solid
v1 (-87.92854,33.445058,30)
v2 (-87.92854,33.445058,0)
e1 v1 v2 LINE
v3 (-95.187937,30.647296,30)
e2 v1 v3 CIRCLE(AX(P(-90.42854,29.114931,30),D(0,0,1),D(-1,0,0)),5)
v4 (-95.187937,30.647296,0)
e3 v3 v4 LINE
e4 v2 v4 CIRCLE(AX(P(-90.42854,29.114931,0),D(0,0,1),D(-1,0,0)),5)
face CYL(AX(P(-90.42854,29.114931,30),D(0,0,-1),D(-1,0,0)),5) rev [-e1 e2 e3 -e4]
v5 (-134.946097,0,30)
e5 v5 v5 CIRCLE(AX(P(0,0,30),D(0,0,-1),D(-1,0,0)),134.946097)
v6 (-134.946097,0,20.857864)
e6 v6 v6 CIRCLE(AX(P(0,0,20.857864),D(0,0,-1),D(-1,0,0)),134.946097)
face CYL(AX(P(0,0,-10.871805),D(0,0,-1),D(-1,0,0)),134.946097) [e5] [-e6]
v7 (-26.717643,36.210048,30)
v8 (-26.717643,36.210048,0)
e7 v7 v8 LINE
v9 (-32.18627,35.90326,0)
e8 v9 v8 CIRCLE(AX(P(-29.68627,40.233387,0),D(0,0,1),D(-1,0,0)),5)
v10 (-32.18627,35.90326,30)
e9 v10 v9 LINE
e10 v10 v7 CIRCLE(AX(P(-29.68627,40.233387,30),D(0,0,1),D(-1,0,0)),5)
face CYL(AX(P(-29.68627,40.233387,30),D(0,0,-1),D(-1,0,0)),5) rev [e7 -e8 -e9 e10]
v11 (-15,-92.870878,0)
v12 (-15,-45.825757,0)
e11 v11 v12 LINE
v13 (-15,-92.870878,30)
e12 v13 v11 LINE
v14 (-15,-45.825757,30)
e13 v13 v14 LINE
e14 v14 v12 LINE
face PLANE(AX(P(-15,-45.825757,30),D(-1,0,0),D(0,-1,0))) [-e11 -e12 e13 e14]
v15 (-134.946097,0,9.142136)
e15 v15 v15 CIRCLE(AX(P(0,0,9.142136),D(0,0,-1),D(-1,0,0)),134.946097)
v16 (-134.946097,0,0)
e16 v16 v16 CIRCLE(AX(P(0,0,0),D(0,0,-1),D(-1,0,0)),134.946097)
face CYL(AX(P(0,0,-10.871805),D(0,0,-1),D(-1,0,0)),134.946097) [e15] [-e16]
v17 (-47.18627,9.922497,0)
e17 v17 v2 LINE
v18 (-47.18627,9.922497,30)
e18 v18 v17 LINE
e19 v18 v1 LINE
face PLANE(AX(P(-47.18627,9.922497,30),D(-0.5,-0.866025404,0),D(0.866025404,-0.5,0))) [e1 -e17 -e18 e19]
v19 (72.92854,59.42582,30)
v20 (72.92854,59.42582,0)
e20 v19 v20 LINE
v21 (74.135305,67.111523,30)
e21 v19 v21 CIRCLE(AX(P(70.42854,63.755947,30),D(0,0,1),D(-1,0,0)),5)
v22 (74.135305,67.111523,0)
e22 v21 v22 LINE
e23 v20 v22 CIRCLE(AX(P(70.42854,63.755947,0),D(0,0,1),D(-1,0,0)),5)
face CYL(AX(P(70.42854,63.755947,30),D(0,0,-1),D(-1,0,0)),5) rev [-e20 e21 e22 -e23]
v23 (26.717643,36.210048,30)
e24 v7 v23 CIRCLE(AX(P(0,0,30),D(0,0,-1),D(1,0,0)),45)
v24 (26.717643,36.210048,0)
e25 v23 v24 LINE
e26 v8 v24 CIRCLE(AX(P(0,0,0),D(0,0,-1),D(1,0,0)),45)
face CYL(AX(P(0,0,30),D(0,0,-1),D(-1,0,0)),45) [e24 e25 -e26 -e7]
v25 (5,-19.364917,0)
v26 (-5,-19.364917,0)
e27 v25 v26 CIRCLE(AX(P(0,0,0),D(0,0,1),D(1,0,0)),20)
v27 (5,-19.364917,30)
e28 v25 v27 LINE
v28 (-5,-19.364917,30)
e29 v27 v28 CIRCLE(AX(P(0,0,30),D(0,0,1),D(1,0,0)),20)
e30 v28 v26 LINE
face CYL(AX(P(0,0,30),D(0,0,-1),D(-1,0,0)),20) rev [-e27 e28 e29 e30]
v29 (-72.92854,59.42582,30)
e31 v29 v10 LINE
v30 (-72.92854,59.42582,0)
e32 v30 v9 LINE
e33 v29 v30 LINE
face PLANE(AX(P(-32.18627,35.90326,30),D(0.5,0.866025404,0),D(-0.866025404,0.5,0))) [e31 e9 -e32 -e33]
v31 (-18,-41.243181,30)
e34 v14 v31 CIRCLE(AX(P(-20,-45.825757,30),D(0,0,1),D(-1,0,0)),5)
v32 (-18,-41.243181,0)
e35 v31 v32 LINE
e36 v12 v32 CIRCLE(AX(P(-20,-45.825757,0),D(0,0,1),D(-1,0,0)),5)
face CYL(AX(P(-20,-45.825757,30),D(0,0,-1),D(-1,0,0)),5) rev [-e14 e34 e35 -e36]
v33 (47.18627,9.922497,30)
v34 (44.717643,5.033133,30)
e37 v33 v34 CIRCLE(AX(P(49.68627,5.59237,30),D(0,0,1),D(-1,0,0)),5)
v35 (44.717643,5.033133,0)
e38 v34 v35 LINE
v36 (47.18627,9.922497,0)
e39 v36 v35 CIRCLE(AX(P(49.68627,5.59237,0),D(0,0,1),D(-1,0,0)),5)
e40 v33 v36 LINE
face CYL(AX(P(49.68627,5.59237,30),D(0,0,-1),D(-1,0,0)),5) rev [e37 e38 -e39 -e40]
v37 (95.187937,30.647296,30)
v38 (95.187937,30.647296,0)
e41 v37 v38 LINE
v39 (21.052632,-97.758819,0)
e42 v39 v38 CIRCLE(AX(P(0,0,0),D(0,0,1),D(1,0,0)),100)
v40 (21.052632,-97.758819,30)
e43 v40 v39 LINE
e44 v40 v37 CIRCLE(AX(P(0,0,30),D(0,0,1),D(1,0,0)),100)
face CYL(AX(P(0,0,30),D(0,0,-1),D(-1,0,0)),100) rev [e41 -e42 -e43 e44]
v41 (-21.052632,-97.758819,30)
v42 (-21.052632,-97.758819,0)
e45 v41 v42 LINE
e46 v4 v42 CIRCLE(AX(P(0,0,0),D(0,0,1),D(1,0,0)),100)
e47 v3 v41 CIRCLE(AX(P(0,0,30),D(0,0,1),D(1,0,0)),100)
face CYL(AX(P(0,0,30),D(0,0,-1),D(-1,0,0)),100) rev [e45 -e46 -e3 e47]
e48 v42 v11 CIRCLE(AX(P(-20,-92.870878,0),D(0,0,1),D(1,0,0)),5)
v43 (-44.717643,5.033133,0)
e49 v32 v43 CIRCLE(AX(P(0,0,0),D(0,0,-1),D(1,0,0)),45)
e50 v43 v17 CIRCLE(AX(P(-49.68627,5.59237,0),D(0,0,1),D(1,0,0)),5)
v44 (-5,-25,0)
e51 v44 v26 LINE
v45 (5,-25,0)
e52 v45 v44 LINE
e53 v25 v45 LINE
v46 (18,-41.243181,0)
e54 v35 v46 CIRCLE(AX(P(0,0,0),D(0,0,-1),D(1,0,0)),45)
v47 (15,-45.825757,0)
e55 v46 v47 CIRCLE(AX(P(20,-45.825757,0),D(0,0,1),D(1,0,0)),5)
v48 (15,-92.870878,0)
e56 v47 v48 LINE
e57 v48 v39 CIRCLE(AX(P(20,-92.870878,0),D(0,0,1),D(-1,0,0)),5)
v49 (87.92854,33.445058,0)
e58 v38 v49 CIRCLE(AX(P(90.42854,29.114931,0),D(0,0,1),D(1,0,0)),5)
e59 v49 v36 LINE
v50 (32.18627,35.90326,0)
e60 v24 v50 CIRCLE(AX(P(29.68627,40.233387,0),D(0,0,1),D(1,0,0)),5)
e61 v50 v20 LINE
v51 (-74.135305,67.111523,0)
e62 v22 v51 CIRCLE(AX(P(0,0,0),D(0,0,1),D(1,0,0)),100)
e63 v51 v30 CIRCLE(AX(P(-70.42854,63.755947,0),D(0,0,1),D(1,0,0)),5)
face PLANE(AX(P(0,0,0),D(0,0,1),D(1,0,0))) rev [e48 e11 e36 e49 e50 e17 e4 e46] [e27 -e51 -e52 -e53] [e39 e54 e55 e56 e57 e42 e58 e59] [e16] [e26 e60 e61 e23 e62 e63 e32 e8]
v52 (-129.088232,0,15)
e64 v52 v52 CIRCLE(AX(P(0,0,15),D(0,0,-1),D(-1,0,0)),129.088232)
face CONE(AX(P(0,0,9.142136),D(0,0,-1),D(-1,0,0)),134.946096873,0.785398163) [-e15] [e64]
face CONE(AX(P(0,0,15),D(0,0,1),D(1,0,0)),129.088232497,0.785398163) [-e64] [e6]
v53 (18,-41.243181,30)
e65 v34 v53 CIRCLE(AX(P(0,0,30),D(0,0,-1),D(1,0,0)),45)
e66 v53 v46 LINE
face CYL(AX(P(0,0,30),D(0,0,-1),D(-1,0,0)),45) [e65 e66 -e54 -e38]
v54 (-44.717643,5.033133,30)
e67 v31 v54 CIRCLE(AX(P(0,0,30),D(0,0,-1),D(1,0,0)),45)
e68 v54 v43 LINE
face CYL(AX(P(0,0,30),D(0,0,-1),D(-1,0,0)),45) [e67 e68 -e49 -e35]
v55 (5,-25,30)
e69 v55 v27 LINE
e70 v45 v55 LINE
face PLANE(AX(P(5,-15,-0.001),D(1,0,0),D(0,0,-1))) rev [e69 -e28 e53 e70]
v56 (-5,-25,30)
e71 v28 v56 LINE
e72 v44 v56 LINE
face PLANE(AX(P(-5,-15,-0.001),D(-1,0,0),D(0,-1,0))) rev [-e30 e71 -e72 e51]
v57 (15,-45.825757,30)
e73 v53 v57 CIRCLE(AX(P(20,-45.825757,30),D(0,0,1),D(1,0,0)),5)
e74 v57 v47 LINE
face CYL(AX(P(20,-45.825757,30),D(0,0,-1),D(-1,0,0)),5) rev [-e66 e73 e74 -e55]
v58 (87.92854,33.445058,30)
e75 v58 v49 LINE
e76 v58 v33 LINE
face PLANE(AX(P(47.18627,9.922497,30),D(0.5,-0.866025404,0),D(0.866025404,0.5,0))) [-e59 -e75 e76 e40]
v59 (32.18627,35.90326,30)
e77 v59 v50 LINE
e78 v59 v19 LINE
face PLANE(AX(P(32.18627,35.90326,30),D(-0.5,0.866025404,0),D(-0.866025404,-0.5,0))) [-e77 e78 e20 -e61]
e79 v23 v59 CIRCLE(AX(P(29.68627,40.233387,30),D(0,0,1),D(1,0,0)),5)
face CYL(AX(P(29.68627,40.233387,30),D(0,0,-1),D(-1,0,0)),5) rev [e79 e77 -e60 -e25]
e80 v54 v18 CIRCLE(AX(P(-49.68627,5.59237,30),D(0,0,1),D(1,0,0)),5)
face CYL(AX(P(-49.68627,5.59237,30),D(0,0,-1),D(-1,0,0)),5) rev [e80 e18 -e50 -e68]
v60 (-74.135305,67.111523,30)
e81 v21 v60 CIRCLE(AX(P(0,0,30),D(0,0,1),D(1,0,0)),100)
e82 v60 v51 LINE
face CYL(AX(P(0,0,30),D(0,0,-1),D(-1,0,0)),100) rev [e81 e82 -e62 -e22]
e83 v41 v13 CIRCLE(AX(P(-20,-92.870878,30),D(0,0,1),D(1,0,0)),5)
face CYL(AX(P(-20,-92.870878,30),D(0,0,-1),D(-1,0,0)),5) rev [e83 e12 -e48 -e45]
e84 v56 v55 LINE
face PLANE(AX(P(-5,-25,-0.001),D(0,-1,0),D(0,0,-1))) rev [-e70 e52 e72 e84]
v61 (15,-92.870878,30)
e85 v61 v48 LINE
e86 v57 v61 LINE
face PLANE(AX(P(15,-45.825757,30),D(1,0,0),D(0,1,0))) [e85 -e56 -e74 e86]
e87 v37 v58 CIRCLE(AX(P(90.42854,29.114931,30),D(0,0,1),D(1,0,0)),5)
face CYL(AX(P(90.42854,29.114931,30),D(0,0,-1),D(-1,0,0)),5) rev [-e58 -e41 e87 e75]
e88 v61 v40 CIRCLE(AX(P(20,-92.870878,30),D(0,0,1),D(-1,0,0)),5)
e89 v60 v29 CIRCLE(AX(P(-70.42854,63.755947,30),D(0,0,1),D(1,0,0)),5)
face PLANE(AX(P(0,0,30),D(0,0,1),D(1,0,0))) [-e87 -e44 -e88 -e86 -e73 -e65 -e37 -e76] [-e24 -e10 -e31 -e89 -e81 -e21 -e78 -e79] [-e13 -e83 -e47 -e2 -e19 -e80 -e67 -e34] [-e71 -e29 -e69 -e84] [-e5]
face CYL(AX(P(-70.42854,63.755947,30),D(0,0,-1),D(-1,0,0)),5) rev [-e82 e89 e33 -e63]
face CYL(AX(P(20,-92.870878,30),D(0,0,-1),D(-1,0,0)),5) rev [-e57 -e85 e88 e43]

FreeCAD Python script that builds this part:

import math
import FreeCAD as App
import Part
import Sketcher
Q = App.Units.Quantity

doc = App.newDocument("Part")
body = doc.addObject("PartDesign::Body", "Body")

# Sketch on XY plane
sketch1 = doc.addObject("Sketcher::SketchObject", "Sketch")
body.addObject(sketch1)
sketch1.AttachmentSupport = (doc.XY_Plane, [""])
sketch1.MapMode = "FlatFace"
sketch1.addGeometry([
    Part.Circle(App.Vector(0, 0, 0), App.Vector(0, 0, 1), 125),  # 0
    Part.ArcOfCircle(Part.Circle(App.Vector(-20, -45.825757, 0), App.Vector(0, 0, 1), 5), math.radians(0), math.radians(66.421822)),  # 1
    Part.LineSegment(App.Vector(-15, -45.825757, 0), App.Vector(-15, -92.870878, 0)),  # 2
    Part.ArcOfCircle(Part.Circle(App.Vector(-20, -92.870878, 0), App.Vector(0, 0, 1), 5), math.radians(-102.153197), math.radians(0)),  # 3
    Part.ArcOfCircle(Part.Circle(App.Vector(0, 0, 0), App.Vector(0, 0, 1), 100), math.radians(162.153197), math.radians(257.846803)),  # 4
    Part.ArcOfCircle(Part.Circle(App.Vector(-90.42854, 29.114931, 0), App.Vector(0, 0, 1), 5), math.radians(60), math.radians(162.153197)),  # 5
    Part.LineSegment(App.Vector(-87.92854, 33.445058, 0), App.Vector(-47.18627, 9.922497, 0)),  # 6
    Part.ArcOfCircle(Part.Circle(App.Vector(-49.68627, 5.59237, 0), App.Vector(0, 0, 1), 5), math.radians(-6.421821), math.radians(60)),  # 7
    Part.ArcOfCircle(Part.Circle(App.Vector(0, 0, 0), App.Vector(0, 0, 1), 45), math.radians(173.578178), math.radians(246.421822)),  # 8
    Part.Circle(App.Vector(0, 0, 0), App.Vector(0, 0, 1), 20),  # 9
    Part.LineSegment(App.Vector(15, -92.870878, 0), App.Vector(15, -45.825757, 0)),  # 10
    Part.ArcOfCircle(Part.Circle(App.Vector(20, -45.825757, 0), App.Vector(0, 0, 1), 5), math.radians(113.578178), math.radians(180)),  # 11
    Part.ArcOfCircle(Part.Circle(App.Vector(0, 0, 0), App.Vector(0, 0, 1), 45), math.radians(-66.421822), math.radians(6.421822)),  # 12
    Part.ArcOfCircle(Part.Circle(App.Vector(49.68627, 5.59237, 0), App.Vector(0, 0, 1), 5), math.radians(120), math.radians(186.421821)),  # 13
    Part.LineSegment(App.Vector(47.18627, 9.922497, 0), App.Vector(87.92854, 33.445058, 0)),  # 14
    Part.ArcOfCircle(Part.Circle(App.Vector(90.42854, 29.114931, 0), App.Vector(0, 0, 1), 5), math.radians(17.846803), math.radians(120)),  # 15
    Part.ArcOfCircle(Part.Circle(App.Vector(0, 0, 0), App.Vector(0, 0, 1), 100), math.radians(-77.846803), math.radians(17.846803)),  # 16
    Part.ArcOfCircle(Part.Circle(App.Vector(20, -92.870878, 0), App.Vector(0, 0, 1), 5), math.radians(180), math.radians(282.153197)),  # 17
    Part.ArcOfCircle(Part.Circle(App.Vector(-29.68627, 40.233387, 0), App.Vector(0, 0, 1), 5), math.radians(-120), math.radians(-53.578178)),  # 18
    Part.LineSegment(App.Vector(-32.18627, 35.90326, 0), App.Vector(-72.92854, 59.42582, 0)),  # 19
    Part.ArcOfCircle(Part.Circle(App.Vector(-70.42854, 63.755947, 0), App.Vector(0, 0, 1), 5), math.radians(137.846803), math.radians(240)),  # 20
    Part.ArcOfCircle(Part.Circle(App.Vector(0, 0, 0), App.Vector(0, 0, 1), 100), math.radians(42.153197), math.radians(137.846803)),  # 21
    Part.ArcOfCircle(Part.Circle(App.Vector(70.42854, 63.755947, 0), App.Vector(0, 0, 1), 5), math.radians(-60), math.radians(42.153197)),  # 22
    Part.LineSegment(App.Vector(72.92854, 59.42582, 0), App.Vector(32.18627, 35.90326, 0)),  # 23
    Part.ArcOfCircle(Part.Circle(App.Vector(29.68627, 40.233387, 0), App.Vector(0, 0, 1), 5), math.radians(-126.421822), math.radians(-60)),  # 24
    Part.ArcOfCircle(Part.Circle(App.Vector(0, 0, 0), App.Vector(0, 0, 1), 45), math.radians(53.578178), math.radians(126.421822)),  # 25
], False)
sketch1.addConstraint([
    Sketcher.Constraint("Tangent", 1, 1, 2, 1),
    Sketcher.Constraint("Tangent", 2, 2, 3, 2),
    Sketcher.Constraint("Tangent", 3, 1, 4, 2),
    Sketcher.Constraint("Tangent", 4, 1, 5, 2),
    Sketcher.Constraint("Tangent", 5, 1, 6, 1),
    Sketcher.Constraint("Tangent", 6, 2, 7, 2),
    Sketcher.Constraint("Tangent", 7, 1, 8, 1),
    Sketcher.Constraint("Tangent", 8, 2, 1, 2),
    Sketcher.Constraint("Tangent", 10, 2, 11, 2),
    Sketcher.Constraint("Tangent", 11, 1, 12, 1),
    Sketcher.Constraint("Tangent", 12, 2, 13, 2),
    Sketcher.Constraint("Tangent", 13, 1, 14, 1),
    Sketcher.Constraint("Tangent", 14, 2, 15, 2),
    Sketcher.Constraint("Tangent", 15, 1, 16, 2),
    Sketcher.Constraint("Tangent", 16, 1, 17, 2),
    Sketcher.Constraint("Tangent", 17, 1, 10, 1),
    Sketcher.Constraint("Tangent", 18, 1, 19, 1),
    Sketcher.Constraint("Tangent", 19, 2, 20, 2),
    Sketcher.Constraint("Tangent", 20, 1, 21, 2),
    Sketcher.Constraint("Tangent", 21, 1, 22, 2),
    Sketcher.Constraint("Tangent", 22, 1, 23, 1),
    Sketcher.Constraint("Tangent", 23, 2, 24, 2),
    Sketcher.Constraint("Tangent", 24, 1, 25, 1),
    Sketcher.Constraint("Tangent", 25, 2, 18, 2),
    Sketcher.Constraint("Vertical", 2),
    Sketcher.Constraint("Vertical", 10),
    Sketcher.Constraint("Coincident", 0, 3, -1, 1),
    Sketcher.Constraint("Coincident", 4, 3, -1, 1),
    Sketcher.Constraint("Coincident", 8, 3, -1, 1),
    Sketcher.Constraint("Coincident", 9, 3, -1, 1),
    Sketcher.Constraint("Coincident", 12, 3, -1, 1),
    Sketcher.Constraint("Coincident", 16, 3, -1, 1),
    Sketcher.Constraint("Coincident", 21, 3, -1, 1),
    Sketcher.Constraint("Coincident", 25, 3, -1, 1),
    Sketcher.Constraint("Equal", 1, 3),
    Sketcher.Constraint("Equal", 3, 5),
    Sketcher.Constraint("Equal", 5, 7),
    Sketcher.Constraint("Equal", 7, 11),
    Sketcher.Constraint("Equal", 8, 12),
    Sketcher.Constraint("Equal", 11, 13),
    Sketcher.Constraint("Equal", 13, 15),
    Sketcher.Constraint("Equal", 4, 16),
    Sketcher.Constraint("Equal", 15, 17),
    Sketcher.Constraint("Equal", 17, 18),
    Sketcher.Constraint("Equal", 18, 20),
    Sketcher.Constraint("Equal", 16, 21),
    Sketcher.Constraint("Equal", 20, 22),
    Sketcher.Constraint("Equal", 22, 24),
    Sketcher.Constraint("Equal", 12, 25),
    Sketcher.Constraint("Symmetric", 6, 2, 13, 1, -2),
    Sketcher.Constraint("Symmetric", 19, 2, 22, 1, -2),
    Sketcher.Constraint("Parallel", 6, 19),
    Sketcher.Constraint("Horizontal", 1, 3, 11, 3),
    Sketcher.Constraint("Equal", 14, 19),
    Sketcher.Constraint("Diameter", 0, Q("250 mm")),
    Sketcher.Constraint("Diameter", 9, Q("40 mm")),
    Sketcher.Constraint("Radius", 1, Q("5 mm")),
    Sketcher.Constraint("Radius", 4, Q("100 mm")),
    Sketcher.Constraint("Radius", 8, Q("45 mm")),
    Sketcher.Constraint("Angle", 6, Q("-30 deg")),
    Sketcher.Constraint("DistanceX", 1, 3, -1, 1, Q("20 mm")),
    Sketcher.Constraint("DistanceX", 7, 3, 18, 3, Q("20 mm")),
])
pad1 = doc.addObject("PartDesign::Pad", "Pad")
body.addObject(pad1)
pad1.Profile = sketch1
pad1.Length = 30

# Sketch on XY plane
sketch2 = doc.addObject("Sketcher::SketchObject", "Sketch001")
body.addObject(sketch2)
sketch2.AttachmentSupport = (doc.XY_Plane, [""])
sketch2.MapMode = "FlatFace"
sketch2.AttachmentOffset = App.Placement(App.Vector(0, 0, 30), App.Rotation())
sketch2.addGeometry([
    Part.LineSegment(App.Vector(-5, -15, 0), App.Vector(-5, -25, 0)),
    Part.LineSegment(App.Vector(-5, -25, 0), App.Vector(5, -25, 0)),
    Part.LineSegment(App.Vector(5, -25, 0), App.Vector(5, -15, 0)),
    Part.LineSegment(App.Vector(5, -15, 0), App.Vector(-5, -15, 0)),
], False)
sketch2.addConstraint([
    Sketcher.Constraint("Coincident", 0, 2, 1, 1),
    Sketcher.Constraint("Coincident", 1, 2, 2, 1),
    Sketcher.Constraint("Coincident", 2, 2, 3, 1),
    Sketcher.Constraint("Coincident", 3, 2, 0, 1),
    Sketcher.Constraint("Vertical", 0),
    Sketcher.Constraint("Horizontal", 1),
    Sketcher.Constraint("Vertical", 2),
    Sketcher.Constraint("Horizontal", 3),
    Sketcher.Constraint("Equal", 3, 0),
    Sketcher.Constraint("DistanceX", 1, 1, 1, 2, Q("10 mm")),
    Sketcher.Constraint("DistanceX", 0, 2, -1, 1, Q("5 mm")),
    Sketcher.Constraint("DistanceY", 0, 2, -1, 1, Q("25 mm")),
])
pocket1 = doc.addObject("PartDesign::Pocket", "Pocket")
body.addObject(pocket1)
pocket1.Profile = sketch2
pocket1.Type = "UpToFirst"

# Sketch on YZ plane
sketch3 = doc.addObject("Sketcher::SketchObject", "Sketch002")
body.addObject(sketch3)
sketch3.AttachmentSupport = (doc.YZ_Plane, [""])
sketch3.MapMode = "FlatFace"
sketch3.addGeometry([
    Part.LineSegment(App.Vector(124.946097, 30, 0), App.Vector(124.946097, 25, 0)),  # 0
    Part.LineSegment(App.Vector(124.946097, 25, 0), App.Vector(114.946097, 15, 0)),  # 1
    Part.LineSegment(App.Vector(114.946097, 15, 0), App.Vector(124.946097, 5, 0)),  # 2
    Part.LineSegment(App.Vector(124.946097, 5, 0), App.Vector(124.946097, 0, 0)),  # 3
    Part.LineSegment(App.Vector(124.946097, 0, 0), App.Vector(134.946097, 0, 0)),  # 4
    Part.LineSegment(App.Vector(134.946097, 0, 0), App.Vector(134.946097, 9.142136, 0)),  # 5
    Part.LineSegment(App.Vector(134.946097, 9.142136, 0), App.Vector(129.088232, 15, 0)),  # 6
    Part.LineSegment(App.Vector(129.088232, 15, 0), App.Vector(134.946097, 20.857864, 0)),  # 7
    Part.LineSegment(App.Vector(134.946097, 20.857864, 0), App.Vector(134.946097, 30, 0)),  # 8
    Part.LineSegment(App.Vector(134.946097, 30, 0), App.Vector(124.946097, 30, 0)),  # 9
], False)
sketch3.addConstraint([
    Sketcher.Constraint("Coincident", 0, 2, 1, 1),
    Sketcher.Constraint("Coincident", 1, 2, 2, 1),
    Sketcher.Constraint("Coincident", 2, 2, 3, 1),
    Sketcher.Constraint("Coincident", 3, 2, 4, 1),
    Sketcher.Constraint("Coincident", 4, 2, 5, 1),
    Sketcher.Constraint("Coincident", 5, 2, 6, 1),
    Sketcher.Constraint("Coincident", 6, 2, 7, 1),
    Sketcher.Constraint("Coincident", 7, 2, 8, 1),
    Sketcher.Constraint("Coincident", 8, 2, 9, 1),
    Sketcher.Constraint("Coincident", 9, 2, 0, 1),
    Sketcher.Constraint("Vertical", 0),
    Sketcher.Constraint("Vertical", 3),
    Sketcher.Constraint("Horizontal", 4),
    Sketcher.Constraint("Vertical", 5),
    Sketcher.Constraint("Vertical", 8),
    Sketcher.Constraint("Horizontal", 9),
    Sketcher.Constraint("PointOnObject", 3, 2, -1),
    Sketcher.Constraint("Perpendicular", 1, 2),
    Sketcher.Constraint("Parallel", 2, 6),
    Sketcher.Constraint("Perpendicular", 6, 7),
    Sketcher.Constraint("Horizontal", 1, 2, 6, 2),
    Sketcher.Constraint("Vertical", 0, 2, 2, 2),
    Sketcher.Constraint("Vertical", 5, 2, 7, 2),
    Sketcher.Constraint("Equal", 0, 3),
    Sketcher.Constraint("Equal", 5, 8),
    Sketcher.Constraint("DistanceX", 4, 1, 4, 2, Q("10 mm")),
    Sketcher.Constraint("DistanceY", 0, 2, 0, 1, Q("5 mm")),
    Sketcher.Constraint("DistanceY", -1, 1, 0, 2, Q("25 mm")),
    Sketcher.Constraint("Distance", 6, Q("8.284271 mm")),
    Sketcher.Constraint("DistanceX", -1, 1, 0, 2, Q("124.946097 mm")),
])
revolution = doc.addObject("PartDesign::Revolution", "Revolution")
body.addObject(revolution)
revolution.Profile = sketch3
revolution.ReferenceAxis = (sketch3, ["V_Axis"])
revolution.Angle = 360

doc.recompute()
